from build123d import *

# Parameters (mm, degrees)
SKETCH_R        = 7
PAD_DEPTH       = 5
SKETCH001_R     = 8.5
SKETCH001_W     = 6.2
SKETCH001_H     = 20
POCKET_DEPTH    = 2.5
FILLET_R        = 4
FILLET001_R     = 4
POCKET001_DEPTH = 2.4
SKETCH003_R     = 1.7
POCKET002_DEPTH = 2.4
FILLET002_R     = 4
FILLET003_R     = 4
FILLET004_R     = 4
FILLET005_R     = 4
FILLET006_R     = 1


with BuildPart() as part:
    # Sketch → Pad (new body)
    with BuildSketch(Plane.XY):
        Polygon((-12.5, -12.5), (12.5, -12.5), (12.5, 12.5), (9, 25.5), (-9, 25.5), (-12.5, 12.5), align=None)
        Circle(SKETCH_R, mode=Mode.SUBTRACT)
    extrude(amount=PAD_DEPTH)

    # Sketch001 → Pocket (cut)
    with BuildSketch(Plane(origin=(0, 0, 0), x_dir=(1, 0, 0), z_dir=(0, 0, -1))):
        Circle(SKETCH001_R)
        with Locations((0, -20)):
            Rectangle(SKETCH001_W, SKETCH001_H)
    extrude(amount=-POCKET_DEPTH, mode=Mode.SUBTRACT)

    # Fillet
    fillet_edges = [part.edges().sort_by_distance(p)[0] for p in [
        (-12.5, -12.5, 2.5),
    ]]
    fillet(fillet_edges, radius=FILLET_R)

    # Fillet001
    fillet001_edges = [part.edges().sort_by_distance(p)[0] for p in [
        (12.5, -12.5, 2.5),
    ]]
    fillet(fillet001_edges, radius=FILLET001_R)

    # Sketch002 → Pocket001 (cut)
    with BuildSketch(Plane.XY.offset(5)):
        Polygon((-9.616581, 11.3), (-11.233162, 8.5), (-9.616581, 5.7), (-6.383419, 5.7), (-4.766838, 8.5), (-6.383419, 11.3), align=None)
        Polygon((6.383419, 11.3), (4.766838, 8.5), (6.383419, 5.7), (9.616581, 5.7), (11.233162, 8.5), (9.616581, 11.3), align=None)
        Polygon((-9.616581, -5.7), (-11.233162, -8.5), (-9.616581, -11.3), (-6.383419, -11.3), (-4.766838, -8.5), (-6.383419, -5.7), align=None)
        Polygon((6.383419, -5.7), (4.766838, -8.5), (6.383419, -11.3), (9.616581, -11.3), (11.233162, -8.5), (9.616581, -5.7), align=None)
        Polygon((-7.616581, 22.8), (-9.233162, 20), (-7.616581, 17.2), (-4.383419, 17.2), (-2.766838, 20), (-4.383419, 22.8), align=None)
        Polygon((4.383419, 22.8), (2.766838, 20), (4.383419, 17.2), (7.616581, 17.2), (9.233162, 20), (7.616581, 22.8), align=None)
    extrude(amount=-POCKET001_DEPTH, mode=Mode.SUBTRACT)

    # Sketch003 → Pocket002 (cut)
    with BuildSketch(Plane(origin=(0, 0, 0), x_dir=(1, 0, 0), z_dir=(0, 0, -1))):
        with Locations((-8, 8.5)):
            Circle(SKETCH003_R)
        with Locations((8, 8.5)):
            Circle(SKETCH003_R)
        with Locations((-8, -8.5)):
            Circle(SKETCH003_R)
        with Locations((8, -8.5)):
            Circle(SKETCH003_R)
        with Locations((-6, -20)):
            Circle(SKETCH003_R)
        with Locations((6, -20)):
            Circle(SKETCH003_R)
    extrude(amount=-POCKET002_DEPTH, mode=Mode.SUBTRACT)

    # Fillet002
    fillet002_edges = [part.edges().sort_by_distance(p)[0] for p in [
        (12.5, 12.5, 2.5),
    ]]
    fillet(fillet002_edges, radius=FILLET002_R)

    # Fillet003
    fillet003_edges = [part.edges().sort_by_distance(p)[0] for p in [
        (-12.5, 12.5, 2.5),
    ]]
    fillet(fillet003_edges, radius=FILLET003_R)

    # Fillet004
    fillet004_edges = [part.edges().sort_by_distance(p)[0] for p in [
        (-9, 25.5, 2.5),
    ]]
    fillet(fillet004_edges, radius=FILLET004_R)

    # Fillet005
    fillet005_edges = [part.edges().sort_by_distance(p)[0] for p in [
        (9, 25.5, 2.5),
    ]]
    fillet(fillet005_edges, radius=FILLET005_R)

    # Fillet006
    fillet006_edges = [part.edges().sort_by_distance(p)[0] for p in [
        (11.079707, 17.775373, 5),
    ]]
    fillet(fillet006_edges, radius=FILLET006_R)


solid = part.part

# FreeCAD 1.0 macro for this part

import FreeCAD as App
import Part
import Sketcher
from FreeCAD import Vector
Q = App.Units.Quantity


def edges_at(feature, points):
    """Names of the edges that pass closest to the given points."""
    edges = feature.Shape.Edges
    near = lambda p: min(range(len(edges)), key=lambda i: edges[i].distToShape(Part.Vertex(*p))[0])
    return sorted({f"Edge{near(p) + 1}" for p in points})

doc = App.newDocument("Part")
params = doc.addObject("Spreadsheet::Sheet", "Params")
for row, (alias, value) in enumerate([
    ("sketch1_diameter", "14 mm"),
    ("sketch1_width", "25 mm"),
    ("sketch1_width2", "18 mm"),
    ("pad1_length", "5 mm"),
    ("sketch2_diameter", "17 mm"),
    ("sketch2_height", "20 mm"),
    ("sketch2_width", "6.2 mm"),
    ("pocket1_length", "2.5 mm"),
    ("fillet_radius", "4 mm"),
    ("fillet2_radius", "4 mm"),
    ("pocket2_length", "2.4 mm"),
    ("sketch4_diameter", "3.4 mm"),
    ("pocket3_length", "2.4 mm"),
    ("fillet3_radius", "4 mm"),
    ("fillet4_radius", "4 mm"),
    ("fillet5_radius", "4 mm"),
    ("fillet6_radius", "4 mm"),
    ("fillet7_radius", "1 mm"),
], start=1):
    params.set(f"A{row}", alias)
    params.set(f"B{row}", "=" + value)
    params.setAlias(f"B{row}", alias)

body = doc.addObject("PartDesign::Body", "Body")

# Sketch on XY plane
sketch1 = body.newObject("Sketcher::SketchObject", "Sketch")
sketch1.AttachmentSupport = (doc.getObject("XY_Plane"), [""])
sketch1.MapMode = "FlatFace"
sketch1.addGeometry(Part.LineSegment(Vector(-12, -12, 0), Vector(12, -12, 0)), False)
sketch1.addGeometry(Part.LineSegment(Vector(12, -12, 0), Vector(12, 12, 0)), False)
sketch1.addGeometry(Part.LineSegment(Vector(12, 12, 0), Vector(9, 26, 0)), False)
sketch1.addGeometry(Part.LineSegment(Vector(9, 26, 0), Vector(-9, 26, 0)), False)
sketch1.addGeometry(Part.LineSegment(Vector(-9, 26, 0), Vector(-12, 12, 0)), False)
sketch1.addGeometry(Part.LineSegment(Vector(-12, 12, 0), Vector(-12, -12, 0)), False)
sketch1.addGeometry(Part.Circle(Vector(0, 0, 0), Vector(0, 0, 1), 7), False)
sketch1.addConstraint(Sketcher.Constraint("Coincident", 0, 2, 1, 1))
sketch1.addConstraint(Sketcher.Constraint("Coincident", 1, 2, 2, 1))
sketch1.addConstraint(Sketcher.Constraint("Coincident", 2, 2, 3, 1))
sketch1.addConstraint(Sketcher.Constraint("Coincident", 3, 2, 4, 1))
sketch1.addConstraint(Sketcher.Constraint("Coincident", 4, 2, 5, 1))
sketch1.addConstraint(Sketcher.Constraint("Coincident", 5, 2, 0, 1))
sketch1.addConstraint(Sketcher.Constraint("Horizontal", 0))
sketch1.addConstraint(Sketcher.Constraint("Vertical", 1))
sketch1.addConstraint(Sketcher.Constraint("Horizontal", 3))
sketch1.addConstraint(Sketcher.Constraint("Vertical", 5))
sketch1.addConstraint(Sketcher.Constraint("Coincident", 6, 3, -1, 1))
sketch1.addConstraint(Sketcher.Constraint("Symmetric", 0, 2, 4, 2, -1, 1))
sketch1.addConstraint(Sketcher.Constraint("Horizontal", 1, 2, 4, 2))
sketch1.addConstraint(Sketcher.Constraint("Equal", 0, 1))
sketch1.addConstraint(Sketcher.Constraint("Equal", 2, 4))
sketch1.addConstraint(Sketcher.Constraint("Diameter", 6, 14.0))
sketch1.addConstraint(Sketcher.Constraint("DistanceX", 0, 1, 0, 2, 25.0))
sketch1.addConstraint(Sketcher.Constraint("DistanceX", 3, 2, 3, 1, 18.0))
sketch1.addConstraint(Sketcher.Constraint("DistanceY", 1, 2, 2, 2, 13.0))
sketch1.setExpression("Constraints[15]", "Params.sketch1_diameter")
sketch1.setExpression("Constraints[16]", "Params.sketch1_width")
sketch1.setExpression("Constraints[17]", "Params.sketch1_width2")
pad1 = body.newObject("PartDesign::Pad", "Pad")
pad1.Profile = sketch1
pad1.setExpression("Length", "Params.pad1_length")

# Sketch on XY plane
sketch2 = body.newObject("Sketcher::SketchObject", "Sketch001")
sketch2.AttachmentSupport = (doc.getObject("XY_Plane"), [""])
sketch2.MapMode = "FlatFace"
sketch2.addGeometry(Part.Circle(Vector(0, 0, 0), Vector(0, 0, 1), 8), False)
sketch2.addGeometry(Part.LineSegment(Vector(-3, 10, 0), Vector(-3, 30, 0)), False)
sketch2.addGeometry(Part.LineSegment(Vector(-3, 30, 0), Vector(3, 30, 0)), False)
sketch2.addGeometry(Part.LineSegment(Vector(3, 30, 0), Vector(3, 10, 0)), False)
sketch2.addGeometry(Part.LineSegment(Vector(3, 10, 0), Vector(-3, 10, 0)), False)
sketch2.addConstraint(Sketcher.Constraint("Coincident", 1, 2, 2, 1))
sketch2.addConstraint(Sketcher.Constraint("Coincident", 2, 2, 3, 1))
sketch2.addConstraint(Sketcher.Constraint("Coincident", 3, 2, 4, 1))
sketch2.addConstraint(Sketcher.Constraint("Coincident", 4, 2, 1, 1))
sketch2.addConstraint(Sketcher.Constraint("Vertical", 1))
sketch2.addConstraint(Sketcher.Constraint("Horizontal", 2))
sketch2.addConstraint(Sketcher.Constraint("Vertical", 3))
sketch2.addConstraint(Sketcher.Constraint("Horizontal", 4))
sketch2.addConstraint(Sketcher.Constraint("Coincident", 0, 3, -1, 1))
sketch2.addConstraint(Sketcher.Constraint("Diameter", 0, 17.0))
sketch2.addConstraint(Sketcher.Constraint("DistanceY", 1, 1, 1, 2, 20.0))
sketch2.addConstraint(Sketcher.Constraint("DistanceX", 2, 1, 2, 2, 6.2))
sketch2.addConstraint(Sketcher.Constraint("DistanceY", -1, 1, 1, 2, 30.0))
sketch2.addConstraint(Sketcher.Constraint("DistanceX", 1, 2, -1, 1, 3.1))
sketch2.setExpression("Constraints[9]", "Params.sketch2_diameter")
sketch2.setExpression("Constraints[10]", "Params.sketch2_height")
sketch2.setExpression("Constraints[11]", "Params.sketch2_width")
pocket1 = body.newObject("PartDesign::Pocket", "Pocket")
pocket1.Profile = sketch2
pocket1.setExpression("Length", "Params.pocket1_length")
pocket1.Reversed = True
doc.recompute()

fillet = body.newObject("PartDesign::Fillet", "Fillet")
fillet.Base = (pocket1, edges_at(pocket1, [(-12.5, -12.5, 2.5)]))
fillet.setExpression("Radius", "Params.fillet_radius")
doc.recompute()

fillet2 = body.newObject("PartDesign::Fillet", "Fillet001")
fillet2.Base = (fillet, edges_at(fillet, [(12.5, -12.5, 2.5)]))
fillet2.setExpression("Radius", "Params.fillet2_radius")

# Sketch on XY plane
sketch3 = body.newObject("Sketcher::SketchObject", "Sketch002")
sketch3.AttachmentSupport = (doc.getObject("XY_Plane"), [""])
sketch3.MapMode = "FlatFace"
sketch3.AttachmentOffset = App.Placement(Vector(0, 0, 5), App.Rotation())
sketch3.addGeometry(Part.LineSegment(Vector(-9.6, 11.3, 0), Vector(-11.2, 8.5, 0)), False)
sketch3.addGeometry(Part.LineSegment(Vector(-11.2, 8.5, 0), Vector(-9.6, 5.7, 0)), False)
sketch3.addGeometry(Part.LineSegment(Vector(-9.6, 5.7, 0), Vector(-6.4, 5.7, 0)), False)
sketch3.addGeometry(Part.LineSegment(Vector(-6.4, 5.7, 0), Vector(-4.8, 8.5, 0)), False)
sketch3.addGeometry(Part.LineSegment(Vector(-4.8, 8.5, 0), Vector(-6.4, 11.3, 0)), False)
sketch3.addGeometry(Part.LineSegment(Vector(-6.4, 11.3, 0), Vector(-9.6, 11.3, 0)), False)
sketch3.addGeometry(Part.LineSegment(Vector(6.4, 11.3, 0), Vector(4.8, 8.5, 0)), False)
sketch3.addGeometry(Part.LineSegment(Vector(4.8, 8.5, 0), Vector(6.4, 5.7, 0)), False)
sketch3.addGeometry(Part.LineSegment(Vector(6.4, 5.7, 0), Vector(9.6, 5.7, 0)), False)
sketch3.addGeometry(Part.LineSegment(Vector(9.6, 5.7, 0), Vector(11.2, 8.5, 0)), False)
sketch3.addGeometry(Part.LineSegment(Vector(11.2, 8.5, 0), Vector(9.6, 11.3, 0)), False)
sketch3.addGeometry(Part.LineSegment(Vector(9.6, 11.3, 0), Vector(6.4, 11.3, 0)), False)
sketch3.addGeometry(Part.LineSegment(Vector(-9.6, -5.7, 0), Vector(-11.2, -8.5, 0)), False)
sketch3.addGeometry(Part.LineSegment(Vector(-11.2, -8.5, 0), Vector(-9.6, -11.3, 0)), False)
sketch3.addGeometry(Part.LineSegment(Vector(-9.6, -11.3, 0), Vector(-6.4, -11.3, 0)), False)
sketch3.addGeometry(Part.LineSegment(Vector(-6.4, -11.3, 0), Vector(-4.8, -8.5, 0)), False)
sketch3.addGeometry(Part.LineSegment(Vector(-4.8, -8.5, 0), Vector(-6.4, -5.7, 0)), False)
sketch3.addGeometry(Part.LineSegment(Vector(-6.4, -5.7, 0), Vector(-9.6, -5.7, 0)), False)
sketch3.addGeometry(Part.LineSegment(Vector(6.4, -5.7, 0), Vector(4.8, -8.5, 0)), False)
sketch3.addGeometry(Part.LineSegment(Vector(4.8, -8.5, 0), Vector(6.4, -11.3, 0)), False)
sketch3.addGeometry(Part.LineSegment(Vector(6.4, -11.3, 0), Vector(9.6, -11.3, 0)), False)
sketch3.addGeometry(Part.LineSegment(Vector(9.6, -11.3, 0), Vector(11.2, -8.5, 0)), False)
sketch3.addGeometry(Part.LineSegment(Vector(11.2, -8.5, 0), Vector(9.6, -5.7, 0)), False)
sketch3.addGeometry(Part.LineSegment(Vector(9.6, -5.7, 0), Vector(6.4, -5.7, 0)), False)
sketch3.addGeometry(Part.LineSegment(Vector(-7.6, 22.8, 0), Vector(-9.2, 20, 0)), False)
sketch3.addGeometry(Part.LineSegment(Vector(-9.2, 20, 0), Vector(-7.6, 17.2, 0)), False)
sketch3.addGeometry(Part.LineSegment(Vector(-7.6, 17.2, 0), Vector(-4.4, 17.2, 0)), False)
sketch3.addGeometry(Part.LineSegment(Vector(-4.4, 17.2, 0), Vector(-2.8, 20, 0)), False)
sketch3.addGeometry(Part.LineSegment(Vector(-2.8, 20, 0), Vector(-4.4, 22.8, 0)), False)
sketch3.addGeometry(Part.LineSegment(Vector(-4.4, 22.8, 0), Vector(-7.6, 22.8, 0)), False)
sketch3.addGeometry(Part.LineSegment(Vector(4.4, 22.8, 0), Vector(2.8, 20, 0)), False)
sketch3.addGeometry(Part.LineSegment(Vector(2.8, 20, 0), Vector(4.4, 17.2, 0)), False)
sketch3.addGeometry(Part.LineSegment(Vector(4.4, 17.2, 0), Vector(7.6, 17.2, 0)), False)
sketch3.addGeometry(Part.LineSegment(Vector(7.6, 17.2, 0), Vector(9.2, 20, 0)), False)
sketch3.addGeometry(Part.LineSegment(Vector(9.2, 20, 0), Vector(7.6, 22.8, 0)), False)
sketch3.addGeometry(Part.LineSegment(Vector(7.6, 22.8, 0), Vector(4.4, 22.8, 0)), False)
sketch3.addConstraint(Sketcher.Constraint("Coincident", 0, 2, 1, 1))
sketch3.addConstraint(Sketcher.Constraint("Coincident", 1, 2, 2, 1))
sketch3.addConstraint(Sketcher.Constraint("Coincident", 2, 2, 3, 1))
sketch3.addConstraint(Sketcher.Constraint("Coincident", 3, 2, 4, 1))
sketch3.addConstraint(Sketcher.Constraint("Coincident", 4, 2, 5, 1))
sketch3.addConstraint(Sketcher.Constraint("Coincident", 5, 2, 0, 1))
sketch3.addConstraint(Sketcher.Constraint("Coincident", 6, 2, 7, 1))
sketch3.addConstraint(Sketcher.Constraint("Coincident", 7, 2, 8, 1))
sketch3.addConstraint(Sketcher.Constraint("Coincident", 8, 2, 9, 1))
sketch3.addConstraint(Sketcher.Constraint("Coincident", 9, 2, 10, 1))
sketch3.addConstraint(Sketcher.Constraint("Coincident", 10, 2, 11, 1))
sketch3.addConstraint(Sketcher.Constraint("Coincident", 11, 2, 6, 1))
sketch3.addConstraint(Sketcher.Constraint("Coincident", 12, 2, 13, 1))
sketch3.addConstraint(Sketcher.Constraint("Coincident", 13, 2, 14, 1))
sketch3.addConstraint(Sketcher.Constraint("Coincident", 14, 2, 15, 1))
sketch3.addConstraint(Sketcher.Constraint("Coincident", 15, 2, 16, 1))
sketch3.addConstraint(Sketcher.Constraint("Coincident", 16, 2, 17, 1))
sketch3.addConstraint(Sketcher.Constraint("Coincident", 17, 2, 12, 1))
sketch3.addConstraint(Sketcher.Constraint("Coincident", 18, 2, 19, 1))
sketch3.addConstraint(Sketcher.Constraint("Coincident", 19, 2, 20, 1))
sketch3.addConstraint(Sketcher.Constraint("Coincident", 20, 2, 21, 1))
sketch3.addConstraint(Sketcher.Constraint("Coincident", 21, 2, 22, 1))
sketch3.addConstraint(Sketcher.Constraint("Coincident", 22, 2, 23, 1))
sketch3.addConstraint(Sketcher.Constraint("Coincident", 23, 2, 18, 1))
sketch3.addConstraint(Sketcher.Constraint("Coincident", 24, 2, 25, 1))
sketch3.addConstraint(Sketcher.Constraint("Coincident", 25, 2, 26, 1))
sketch3.addConstraint(Sketcher.Constraint("Coincident", 26, 2, 27, 1))
sketch3.addConstraint(Sketcher.Constraint("Coincident", 27, 2, 28, 1))
sketch3.addConstraint(Sketcher.Constraint("Coincident", 28, 2, 29, 1))
sketch3.addConstraint(Sketcher.Constraint("Coincident", 29, 2, 24, 1))
sketch3.addConstraint(Sketcher.Constraint("Coincident", 30, 2, 31, 1))
sketch3.addConstraint(Sketcher.Constraint("Coincident", 31, 2, 32, 1))
sketch3.addConstraint(Sketcher.Constraint("Coincident", 32, 2, 33, 1))
sketch3.addConstraint(Sketcher.Constraint("Coincident", 33, 2, 34, 1))
sketch3.addConstraint(Sketcher.Constraint("Coincident", 34, 2, 35, 1))
sketch3.addConstraint(Sketcher.Constraint("Coincident", 35, 2, 30, 1))
sketch3.addConstraint(Sketcher.Constraint("Horizontal", 2))
sketch3.addConstraint(Sketcher.Constraint("Horizontal", 5))
sketch3.addConstraint(Sketcher.Constraint("Horizontal", 8))
sketch3.addConstraint(Sketcher.Constraint("Horizontal", 11))
sketch3.addConstraint(Sketcher.Constraint("Horizontal", 14))
sketch3.addConstraint(Sketcher.Constraint("Horizontal", 17))
sketch3.addConstraint(Sketcher.Constraint("Horizontal", 20))
sketch3.addConstraint(Sketcher.Constraint("Horizontal", 23))
sketch3.addConstraint(Sketcher.Constraint("Horizontal", 26))
sketch3.addConstraint(Sketcher.Constraint("Horizontal", 29))
sketch3.addConstraint(Sketcher.Constraint("Horizontal", 32))
sketch3.addConstraint(Sketcher.Constraint("Horizontal", 35))
sketch3.addConstraint(Sketcher.Constraint("Symmetric", 9, 2, 12, 2, -1, 1))
sketch3.addConstraint(Sketcher.Constraint("Symmetric", 10, 2, 13, 2, -1, 1))
sketch3.addConstraint(Sketcher.Constraint("Symmetric", 6, 2, 15, 2, -1, 1))
sketch3.addConstraint(Sketcher.Constraint("Symmetric", 7, 2, 16, 2, -1, 1))
sketch3.addConstraint(Sketcher.Constraint("Symmetric", 3, 2, 18, 2, -1, 1))
sketch3.addConstraint(Sketcher.Constraint("Symmetric", 4, 2, 19, 2, -1, 1))
sketch3.addConstraint(Sketcher.Constraint("Symmetric", 0, 2, 21, 2, -1, 1))
sketch3.addConstraint(Sketcher.Constraint("Symmetric", 1, 2, 22, 2, -1, 1))
sketch3.addConstraint(Sketcher.Constraint("Symmetric", 3, 2, 6, 2, -2))
sketch3.addConstraint(Sketcher.Constraint("Symmetric", 2, 2, 7, 2, -2))
sketch3.addConstraint(Sketcher.Constraint("Symmetric", 0, 2, 9, 2, -2))
sketch3.addConstraint(Sketcher.Constraint("Symmetric", 5, 2, 10, 2, -2))
sketch3.addConstraint(Sketcher.Constraint("Symmetric", 27, 2, 30, 2, -2))
sketch3.addConstraint(Sketcher.Constraint("Symmetric", 26, 2, 31, 2, -2))
sketch3.addConstraint(Sketcher.Constraint("Symmetric", 24, 2, 33, 2, -2))
sketch3.addConstraint(Sketcher.Constraint("Symmetric", 29, 2, 34, 2, -2))
sketch3.addConstraint(Sketcher.Constraint("Parallel", 0, 3))
sketch3.addConstraint(Sketcher.Constraint("Parallel", 1, 4))
sketch3.addConstraint(Sketcher.Constraint("Parallel", 3, 6))
sketch3.addConstraint(Sketcher.Constraint("Parallel", 4, 7))
sketch3.addConstraint(Sketcher.Constraint("Parallel", 6, 9))
sketch3.addConstraint(Sketcher.Constraint("Parallel", 9, 12))
sketch3.addConstraint(Sketcher.Constraint("Parallel", 12, 15))
sketch3.addConstraint(Sketcher.Constraint("Parallel", 15, 18))
sketch3.addConstraint(Sketcher.Constraint("Parallel", 18, 21))
sketch3.addConstraint(Sketcher.Constraint("Parallel", 21, 24))
sketch3.addConstraint(Sketcher.Constraint("Parallel", 22, 25))
sketch3.addConstraint(Sketcher.Constraint("Parallel", 24, 27))
sketch3.addConstraint(Sketcher.Constraint("Parallel", 25, 28))
sketch3.addConstraint(Sketcher.Constraint("Parallel", 27, 30))
sketch3.addConstraint(Sketcher.Constraint("Parallel", 30, 33))
sketch3.addConstraint(Sketcher.Constraint("Horizontal", 0, 2, 3, 2))
sketch3.addConstraint(Sketcher.Constraint("Horizontal", 24, 2, 27, 2))
sketch3.addConstraint(Sketcher.Constraint("Vertical", 2, 2, 4, 2))
sketch3.addConstraint(Sketcher.Constraint("Vertical", 26, 2, 28, 2))
sketch3.addConstraint(Sketcher.Constraint("Equal", 23, 26))
sketch3.addConstraint(Sketcher.Constraint("Equal", 22, 24))
sketch3.addConstraint(Sketcher.Constraint("Angle", 0, Q("-120.000004 deg")))
sketch3.addConstraint(Sketcher.Constraint("DistanceY", -1, 1, 24, 2, 20.0))
sketch3.addConstraint(Sketcher.Constraint("DistanceX", 1, 2, 7, 2, 16.0))
sketch3.addConstraint(Sketcher.Constraint("DistanceY", 12, 2, 0, 2, 17.0))
sketch3.addConstraint(Sketcher.Constraint("DistanceX", 0, 2, 24, 2, 2.0))
sketch3.addConstraint(Sketcher.Constraint("DistanceY", -1, 1, 1, 2, 5.7))
sketch3.addConstraint(Sketcher.Constraint("DistanceX", 2, 1, 2, 2, 3.233162))
pocket2 = body.newObject("PartDesign::Pocket", "Pocket001")
pocket2.Profile = sketch3
pocket2.setExpression("Length", "Params.pocket2_length")

# Sketch on XY plane
sketch4 = body.newObject("Sketcher::SketchObject", "Sketch003")
sketch4.AttachmentSupport = (doc.getObject("XY_Plane"), [""])
sketch4.MapMode = "FlatFace"
sketch4.addGeometry(Part.Circle(Vector(-8, -8.5, 0), Vector(0, 0, 1), 1.7), False)
sketch4.addGeometry(Part.Circle(Vector(8, -8.5, 0), Vector(0, 0, 1), 1.7), False)
sketch4.addGeometry(Part.Circle(Vector(-8, 8.5, 0), Vector(0, 0, 1), 1.7), False)
sketch4.addGeometry(Part.Circle(Vector(8, 8.5, 0), Vector(0, 0, 1), 1.7), False)
sketch4.addGeometry(Part.Circle(Vector(-6, 20, 0), Vector(0, 0, 1), 1.7), False)
sketch4.addGeometry(Part.Circle(Vector(6, 20, 0), Vector(0, 0, 1), 1.7), False)
sketch4.addConstraint(Sketcher.Constraint("Equal", 0, 1))
sketch4.addConstraint(Sketcher.Constraint("Equal", 1, 2))
sketch4.addConstraint(Sketcher.Constraint("Equal", 2, 3))
sketch4.addConstraint(Sketcher.Constraint("Equal", 3, 4))
sketch4.addConstraint(Sketcher.Constraint("Equal", 4, 5))
sketch4.addConstraint(Sketcher.Constraint("Symmetric", 1, 3, 2, 3, -1, 1))
sketch4.addConstraint(Sketcher.Constraint("Symmetric", 0, 3, 3, 3, -1, 1))
sketch4.addConstraint(Sketcher.Constraint("Symmetric", 0, 3, 1, 3, -2))
sketch4.addConstraint(Sketcher.Constraint("Symmetric", 4, 3, 5, 3, -2))
sketch4.addConstraint(Sketcher.Constraint("Diameter", 0, 3.4))
sketch4.addConstraint(Sketcher.Constraint("DistanceX", 0, 3, -1, 1, 8.0))
sketch4.addConstraint(Sketcher.Constraint("DistanceX", 4, 3, -1, 1, 6.0))
sketch4.addConstraint(Sketcher.Constraint("DistanceY", -1, 1, 4, 3, 20.0))
sketch4.addConstraint(Sketcher.Constraint("DistanceY", 0, 3, 2, 3, 17.0))
sketch4.setExpression("Constraints[9]", "Params.sketch4_diameter")
pocket3 = body.newObject("PartDesign::Pocket", "Pocket002")
pocket3.Profile = sketch4
pocket3.setExpression("Length", "Params.pocket3_length")
pocket3.Reversed = True
doc.recompute()

fillet3 = body.newObject("PartDesign::Fillet", "Fillet002")
fillet3.Base = (pocket3, edges_at(pocket3, [(12.5, 12.5, 2.5)]))
fillet3.setExpression("Radius", "Params.fillet3_radius")
doc.recompute()

fillet4 = body.newObject("PartDesign::Fillet", "Fillet003")
fillet4.Base = (fillet3, edges_at(fillet3, [(-12.5, 12.5, 2.5)]))
fillet4.setExpression("Radius", "Params.fillet4_radius")
doc.recompute()

fillet5 = body.newObject("PartDesign::Fillet", "Fillet004")
fillet5.Base = (fillet4, edges_at(fillet4, [(-9, 25.5, 2.5)]))
fillet5.setExpression("Radius", "Params.fillet5_radius")
doc.recompute()

fillet6 = body.newObject("PartDesign::Fillet", "Fillet005")
fillet6.Base = (fillet5, edges_at(fillet5, [(9, 25.5, 2.5)]))
fillet6.setExpression("Radius", "Params.fillet6_radius")
doc.recompute()

fillet7 = body.newObject("PartDesign::Fillet", "Fillet006")
fillet7.Base = (fillet6, edges_at(fillet6, [(11.08, 17.775, 5)]))
fillet7.setExpression("Radius", "Params.fillet7_radius")

doc.recompute()
